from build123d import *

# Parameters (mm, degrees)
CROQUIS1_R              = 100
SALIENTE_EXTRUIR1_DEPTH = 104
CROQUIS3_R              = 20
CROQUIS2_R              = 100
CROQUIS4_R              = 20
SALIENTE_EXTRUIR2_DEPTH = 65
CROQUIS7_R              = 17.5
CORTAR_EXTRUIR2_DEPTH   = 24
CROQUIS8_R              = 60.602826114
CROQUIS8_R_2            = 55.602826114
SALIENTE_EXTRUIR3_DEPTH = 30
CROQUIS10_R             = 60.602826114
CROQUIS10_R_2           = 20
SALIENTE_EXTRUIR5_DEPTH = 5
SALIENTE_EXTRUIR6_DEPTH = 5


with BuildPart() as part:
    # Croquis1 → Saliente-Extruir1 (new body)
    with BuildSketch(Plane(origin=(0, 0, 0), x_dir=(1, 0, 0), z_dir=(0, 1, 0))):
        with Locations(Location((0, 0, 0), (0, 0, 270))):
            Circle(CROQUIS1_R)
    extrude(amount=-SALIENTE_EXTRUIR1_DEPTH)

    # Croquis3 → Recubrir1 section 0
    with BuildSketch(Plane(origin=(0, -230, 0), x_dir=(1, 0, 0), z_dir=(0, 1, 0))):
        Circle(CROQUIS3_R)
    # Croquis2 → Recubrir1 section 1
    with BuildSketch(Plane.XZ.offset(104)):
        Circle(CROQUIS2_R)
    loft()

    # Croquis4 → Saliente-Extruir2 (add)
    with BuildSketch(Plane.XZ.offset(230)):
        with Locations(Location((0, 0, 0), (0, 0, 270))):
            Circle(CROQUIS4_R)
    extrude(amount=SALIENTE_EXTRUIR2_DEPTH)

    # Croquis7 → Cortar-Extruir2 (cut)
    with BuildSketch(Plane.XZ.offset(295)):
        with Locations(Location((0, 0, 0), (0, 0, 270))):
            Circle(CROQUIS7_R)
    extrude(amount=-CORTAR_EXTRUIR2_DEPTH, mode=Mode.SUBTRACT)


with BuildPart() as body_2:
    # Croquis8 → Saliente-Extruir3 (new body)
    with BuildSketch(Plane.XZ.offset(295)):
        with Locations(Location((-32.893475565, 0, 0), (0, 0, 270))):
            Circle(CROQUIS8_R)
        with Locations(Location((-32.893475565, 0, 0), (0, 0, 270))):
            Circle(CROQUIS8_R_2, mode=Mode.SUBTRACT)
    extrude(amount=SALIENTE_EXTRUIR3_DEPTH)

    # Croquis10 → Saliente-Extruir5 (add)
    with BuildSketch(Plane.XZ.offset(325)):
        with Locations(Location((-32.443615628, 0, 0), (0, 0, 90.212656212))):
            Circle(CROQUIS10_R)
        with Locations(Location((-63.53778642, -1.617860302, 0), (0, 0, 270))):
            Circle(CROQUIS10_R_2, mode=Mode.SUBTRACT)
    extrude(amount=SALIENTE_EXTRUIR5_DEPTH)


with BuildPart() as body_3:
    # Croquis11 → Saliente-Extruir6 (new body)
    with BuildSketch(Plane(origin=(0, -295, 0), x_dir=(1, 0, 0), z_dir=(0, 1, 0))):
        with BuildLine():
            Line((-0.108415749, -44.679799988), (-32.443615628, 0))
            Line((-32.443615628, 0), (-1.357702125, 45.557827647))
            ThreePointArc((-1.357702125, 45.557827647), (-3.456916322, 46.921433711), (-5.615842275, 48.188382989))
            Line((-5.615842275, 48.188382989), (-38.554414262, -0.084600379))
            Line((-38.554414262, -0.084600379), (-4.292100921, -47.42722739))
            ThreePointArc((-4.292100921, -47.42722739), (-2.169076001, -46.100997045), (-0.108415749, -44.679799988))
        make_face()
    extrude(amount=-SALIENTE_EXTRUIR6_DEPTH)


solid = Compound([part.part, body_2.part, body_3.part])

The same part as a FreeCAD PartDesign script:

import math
import FreeCAD as App
import Part
import Sketcher

doc = App.newDocument("Part")
body = doc.addObject("PartDesign::Body", "Body")

# Sketch on XZ plane
sketch1 = doc.addObject("Sketcher::SketchObject", "Sketch")
body.addObject(sketch1)
sketch1.AttachmentSupport = (doc.XZ_Plane, [""])
sketch1.MapMode = "FlatFace"
sketch1.addGeometry(Part.Circle(App.Vector(0, 0, 0), App.Vector(0, 0, 1), 100), False)
sketch1.addConstraint([
    Sketcher.Constraint("Coincident", 0, 3, -1, 1),
    Sketcher.Constraint("Diameter", 0, 200.0),
])
pad1 = doc.addObject("PartDesign::Pad", "Pad")
body.addObject(pad1)
pad1.Profile = sketch1
pad1.Length = 104

# Sketch on XZ plane
sketch2 = doc.addObject("Sketcher::SketchObject", "Sketch001")
body.addObject(sketch2)
sketch2.AttachmentSupport = (doc.XZ_Plane, [""])
sketch2.MapMode = "FlatFace"
sketch2.AttachmentOffset = App.Placement(App.Vector(0, 0, 230), App.Rotation())
sketch2.addGeometry(Part.Circle(App.Vector(0, 0, 0), App.Vector(0, 0, 1), 20), False)
sketch2.addConstraint([
    Sketcher.Constraint("Coincident", 0, 3, -1, 1),
    Sketcher.Constraint("Diameter", 0, 40.0),
])

# Sketch on XZ plane
sketch3 = doc.addObject("Sketcher::SketchObject", "Sketch002")
body.addObject(sketch3)
sketch3.AttachmentSupport = (doc.XZ_Plane, [""])
sketch3.MapMode = "FlatFace"
sketch3.AttachmentOffset = App.Placement(App.Vector(0, 0, 104), App.Rotation())
sketch3.addGeometry(Part.Circle(App.Vector(0, 0, 0), App.Vector(0, 0, 1), 100), False)
sketch3.addConstraint([
    Sketcher.Constraint("Coincident", 0, 3, -1, 1),
    Sketcher.Constraint("Diameter", 0, 200.0),
])

additiveloft = doc.addObject("PartDesign::AdditiveLoft", "AdditiveLoft")
body.addObject(additiveloft)
additiveloft.Profile = sketch2
additiveloft.Sections = [sketch3]

# Sketch on XZ plane
sketch4 = doc.addObject("Sketcher::SketchObject", "Sketch003")
body.addObject(sketch4)
sketch4.AttachmentSupport = (doc.XZ_Plane, [""])
sketch4.MapMode = "FlatFace"
sketch4.AttachmentOffset = App.Placement(App.Vector(0, 0, 230), App.Rotation())
sketch4.addGeometry(Part.Circle(App.Vector(0, 0, 0), App.Vector(0, 0, 1), 20), False)
sketch4.addConstraint([
    Sketcher.Constraint("Coincident", 0, 3, -1, 1),
    Sketcher.Constraint("Diameter", 0, 40.0),
])
pad2 = doc.addObject("PartDesign::Pad", "Pad001")
body.addObject(pad2)
pad2.Profile = sketch4
pad2.Length = 65

# Sketch on XZ plane
sketch5 = doc.addObject("Sketcher::SketchObject", "Sketch004")
body.addObject(sketch5)
sketch5.AttachmentSupport = (doc.XZ_Plane, [""])
sketch5.MapMode = "FlatFace"
sketch5.AttachmentOffset = App.Placement(App.Vector(0, 0, 295), App.Rotation())
sketch5.addGeometry(Part.Circle(App.Vector(0, 0, 0), App.Vector(0, 0, 1), 17.5), False)
sketch5.addConstraint([
    Sketcher.Constraint("Coincident", 0, 3, -1, 1),
    Sketcher.Constraint("Diameter", 0, 35.0),
])
pocket1 = doc.addObject("PartDesign::Pocket", "Pocket")
body.addObject(pocket1)
pocket1.Profile = sketch5
pocket1.Length = 24
body2 = doc.addObject("PartDesign::Body", "Body001")

# Sketch on XZ plane
sketch6 = doc.addObject("Sketcher::SketchObject", "Sketch005")
body2.addObject(sketch6)
sketch6.AttachmentSupport = (doc.getObject("XZ_Plane001"), [""])
sketch6.MapMode = "FlatFace"
sketch6.AttachmentOffset = App.Placement(App.Vector(0, 0, 295), App.Rotation())
sketch6.addGeometry([
    Part.Circle(App.Vector(-32.893476, 0, 0), App.Vector(0, 0, 1), 60.602826),
    Part.Circle(App.Vector(-32.893476, 0, 0), App.Vector(0, 0, 1), 55.602826),
], False)
sketch6.addConstraint([
    Sketcher.Constraint("Coincident", 1, 3, 0, 3),
    Sketcher.Constraint("PointOnObject", 0, 3, -1),
    Sketcher.Constraint("Diameter", 0, 121.205652),
    Sketcher.Constraint("Diameter", 1, 111.205652),
    Sketcher.Constraint("DistanceX", 0, 3, -1, 1, 32.893476),
])
pad3 = doc.addObject("PartDesign::Pad", "Pad002")
body2.addObject(pad3)
pad3.Profile = sketch6
pad3.Length = 30

# Sketch on XZ plane
sketch7 = doc.addObject("Sketcher::SketchObject", "Sketch006")
body2.addObject(sketch7)
sketch7.AttachmentSupport = (doc.getObject("XZ_Plane001"), [""])
sketch7.MapMode = "FlatFace"
sketch7.AttachmentOffset = App.Placement(App.Vector(0, 0, 325), App.Rotation())
sketch7.addGeometry([
    Part.Circle(App.Vector(-32.443616, 0, 0), App.Vector(0, 0, 1), 60.602826),
    Part.Circle(App.Vector(-63.537786, -1.61786, 0), App.Vector(0, 0, 1), 20),
], False)
sketch7.addConstraint([
    Sketcher.Constraint("PointOnObject", 0, 3, -1),
    Sketcher.Constraint("Diameter", 1, 40.0),
    Sketcher.Constraint("Diameter", 0, 121.205652),
    Sketcher.Constraint("DistanceY", 1, 3, -1, 1, 1.61786),
    Sketcher.Constraint("DistanceX", 1, 3, 0, 3, 31.094171),
    Sketcher.Constraint("DistanceX", 0, 3, -1, 1, 32.443616),
])
pad4 = doc.addObject("PartDesign::Pad", "Pad003")
body2.addObject(pad4)
pad4.Profile = sketch7
pad4.Length = 5
body3 = doc.addObject("PartDesign::Body", "Body002")

# Sketch on XZ plane
sketch8 = doc.addObject("Sketcher::SketchObject", "Sketch007")
body3.addObject(sketch8)
sketch8.AttachmentSupport = (doc.getObject("XZ_Plane002"), [""])
sketch8.MapMode = "FlatFace"
sketch8.AttachmentOffset = App.Placement(App.Vector(0, 0, 295), App.Rotation())
sketch8.addGeometry([
    Part.LineSegment(App.Vector(-0.108416, 44.6798, 0), App.Vector(-32.443616, 0, 0)),  # 0
    Part.LineSegment(App.Vector(-32.443616, 0, 0), App.Vector(-1.357702, -45.557828, 0)),  # 1
    Part.ArcOfCircle(Part.Circle(App.Vector(-32.443616, 0, 0), App.Vector(0, 0, 1), 55.152967), math.radians(-60.894133), math.radians(-55.692731)),  # 2
    Part.LineSegment(App.Vector(-5.615842, -48.188383, 0), App.Vector(-38.554414, 0.0846, 0)),  # 3
    Part.LineSegment(App.Vector(-38.554414, 0.0846, 0), App.Vector(-4.292101, 47.427227, 0)),  # 4
    Part.ArcOfCircle(Part.Circle(App.Vector(-32.443616, 0, 0), App.Vector(0, 0, 1), 55.152966), math.radians(54.10638), math.radians(59.307782)),  # 5
], False)
sketch8.addConstraint([
    Sketcher.Constraint("Coincident", 0, 2, 1, 1),
    Sketcher.Constraint("Coincident", 1, 2, 2, 2),
    Sketcher.Constraint("Coincident", 2, 1, 3, 1),
    Sketcher.Constraint("Coincident", 3, 2, 4, 1),
    Sketcher.Constraint("Coincident", 4, 2, 5, 2),
    Sketcher.Constraint("Coincident", 5, 1, 0, 1),
    Sketcher.Constraint("Coincident", 5, 3, 2, 3),
    Sketcher.Constraint("Coincident", 0, 2, 2, 3),
    Sketcher.Constraint("Equal", 2, 5),
    Sketcher.Constraint("PointOnObject", 2, 3, -1),
    Sketcher.Constraint("Parallel", 1, 3),
    Sketcher.Constraint("Parallel", 0, 4),
    Sketcher.Constraint("Equal", 3, 4),
    Sketcher.Constraint("Radius", 2, 55.152967),
    Sketcher.Constraint("DistanceX", 3, 2, 5, 1, 38.445999),
    Sketcher.Constraint("DistanceY", -1, 1, 3, 2, 0.0846),
    Sketcher.Constraint("DistanceX", 4, 2, -1, 1, 4.292101),
    Sketcher.Constraint("DistanceY", -1, 1, 5, 1, 44.6798),
])
pad5 = doc.addObject("PartDesign::Pad", "Pad004")
body3.addObject(pad5)
pad5.Profile = sketch8
pad5.Length = 5

doc.recompute()
